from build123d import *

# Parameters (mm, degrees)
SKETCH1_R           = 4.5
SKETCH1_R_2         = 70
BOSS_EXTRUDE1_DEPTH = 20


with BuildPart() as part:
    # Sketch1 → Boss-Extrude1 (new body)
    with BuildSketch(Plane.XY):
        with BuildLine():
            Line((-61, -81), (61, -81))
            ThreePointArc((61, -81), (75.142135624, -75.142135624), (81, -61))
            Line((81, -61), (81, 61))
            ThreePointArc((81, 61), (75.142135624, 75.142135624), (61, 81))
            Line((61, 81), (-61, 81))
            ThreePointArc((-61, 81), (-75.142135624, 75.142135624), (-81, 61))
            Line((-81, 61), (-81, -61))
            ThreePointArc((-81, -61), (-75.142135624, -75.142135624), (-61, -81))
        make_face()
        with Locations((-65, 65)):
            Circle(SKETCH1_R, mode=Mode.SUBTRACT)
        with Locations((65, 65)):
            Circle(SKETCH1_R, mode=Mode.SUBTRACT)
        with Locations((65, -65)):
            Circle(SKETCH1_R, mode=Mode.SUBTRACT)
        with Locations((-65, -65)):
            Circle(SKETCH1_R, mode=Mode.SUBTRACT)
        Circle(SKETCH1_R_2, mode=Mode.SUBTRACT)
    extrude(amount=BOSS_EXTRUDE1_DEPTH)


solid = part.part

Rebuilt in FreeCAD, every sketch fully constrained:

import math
import FreeCAD as App
import Part
import Sketcher

V = App.Vector

doc = App.newDocument("Part")
body = doc.addObject("PartDesign::Body", "Body")

sketch1 = doc.addObject("Sketcher::SketchObject", "Sketch")
body.addObject(sketch1)
sketch1.AttachmentSupport = (doc.XY_Plane, [""])
sketch1.MapMode = "FlatFace"
sketch1.addGeometry(Part.LineSegment(V(-61, -81, 0), V(61, -81, 0)), False)
sketch1.addGeometry(Part.ArcOfCircle(Part.Circle(V(61, -61, 0), V(0, 0, 1), 20), math.radians(-90), math.radians(0)), False)
sketch1.addGeometry(Part.LineSegment(V(81, -61, 0), V(81, 61, 0)), False)
sketch1.addGeometry(Part.ArcOfCircle(Part.Circle(V(61, 61, 0), V(0, 0, 1), 20), math.radians(0), math.radians(90)), False)
sketch1.addGeometry(Part.LineSegment(V(61, 81, 0), V(-61, 81, 0)), False)
sketch1.addGeometry(Part.ArcOfCircle(Part.Circle(V(-61, 61, 0), V(0, 0, 1), 20), math.radians(90), math.radians(180)), False)
sketch1.addGeometry(Part.LineSegment(V(-81, 61, 0), V(-81, -61, 0)), False)
sketch1.addGeometry(Part.ArcOfCircle(Part.Circle(V(-61, -61, 0), V(0, 0, 1), 20), math.radians(180), math.radians(270)), False)
sketch1.addGeometry(Part.Circle(V(-65, -65, 0), V(0, 0, 1), 4.5), False)
sketch1.addGeometry(Part.Circle(V(65, -65, 0), V(0, 0, 1), 4.5), False)
sketch1.addGeometry(Part.Circle(V(-65, 65, 0), V(0, 0, 1), 4.5), False)
sketch1.addGeometry(Part.Circle(V(0, 0, 0), V(0, 0, 1), 70), False)
sketch1.addGeometry(Part.Circle(V(65, 65, 0), V(0, 0, 1), 4.5), False)
sketch1.addConstraint(Sketcher.Constraint("Tangent", 0, 2, 1, 1))
sketch1.addConstraint(Sketcher.Constraint("Tangent", 1, 2, 2, 1))
sketch1.addConstraint(Sketcher.Constraint("Tangent", 2, 2, 3, 1))
sketch1.addConstraint(Sketcher.Constraint("Tangent", 3, 2, 4, 1))
sketch1.addConstraint(Sketcher.Constraint("Tangent", 4, 2, 5, 1))
sketch1.addConstraint(Sketcher.Constraint("Tangent", 5, 2, 6, 1))
sketch1.addConstraint(Sketcher.Constraint("Tangent", 6, 2, 7, 1))
sketch1.addConstraint(Sketcher.Constraint("Tangent", 7, 2, 0, 1))
sketch1.addConstraint(Sketcher.Constraint("Horizontal", 0))
sketch1.addConstraint(Sketcher.Constraint("Vertical", 2))
sketch1.addConstraint(Sketcher.Constraint("Horizontal", 4))
sketch1.addConstraint(Sketcher.Constraint("Vertical", 6))
sketch1.addConstraint(Sketcher.Constraint("Coincident", 11, 3, -1, 1))
sketch1.addConstraint(Sketcher.Constraint("Equal", 1, 3))
sketch1.addConstraint(Sketcher.Constraint("Equal", 3, 5))
sketch1.addConstraint(Sketcher.Constraint("Equal", 5, 7))
sketch1.addConstraint(Sketcher.Constraint("Equal", 8, 9))
sketch1.addConstraint(Sketcher.Constraint("Equal", 9, 10))
sketch1.addConstraint(Sketcher.Constraint("Equal", 10, 12))
sketch1.addConstraint(Sketcher.Constraint("Symmetric", 1, 3, 5, 3, -1, 1))
sketch1.addConstraint(Sketcher.Constraint("Symmetric", 9, 3, 10, 3, -1, 1))
sketch1.addConstraint(Sketcher.Constraint("Symmetric", 8, 3, 12, 3, -1, 1))
sketch1.addConstraint(Sketcher.Constraint("Symmetric", 8, 3, 9, 3, -2))
sketch1.addConstraint(Sketcher.Constraint("Equal", 4, 2))
sketch1.addConstraint(Sketcher.Constraint("Diameter", 8, 9.0))
sketch1.addConstraint(Sketcher.Constraint("Diameter", 11, 140.0))
sketch1.addConstraint(Sketcher.Constraint("Radius", 1, 20.0))
sketch1.addConstraint(Sketcher.Constraint("DistanceX", 0, 1, 0, 2, 122.0))
sketch1.addConstraint(Sketcher.Constraint("DistanceX", 8, 3, -1, 1, 65.0))
sketch1.addConstraint(Sketcher.Constraint("DistanceY", 8, 3, -1, 1, 65.0))
pad1 = doc.addObject("PartDesign::Pad", "Pad")
body.addObject(pad1)
pad1.Profile = sketch1
pad1.Length = 20

doc.recompute()
